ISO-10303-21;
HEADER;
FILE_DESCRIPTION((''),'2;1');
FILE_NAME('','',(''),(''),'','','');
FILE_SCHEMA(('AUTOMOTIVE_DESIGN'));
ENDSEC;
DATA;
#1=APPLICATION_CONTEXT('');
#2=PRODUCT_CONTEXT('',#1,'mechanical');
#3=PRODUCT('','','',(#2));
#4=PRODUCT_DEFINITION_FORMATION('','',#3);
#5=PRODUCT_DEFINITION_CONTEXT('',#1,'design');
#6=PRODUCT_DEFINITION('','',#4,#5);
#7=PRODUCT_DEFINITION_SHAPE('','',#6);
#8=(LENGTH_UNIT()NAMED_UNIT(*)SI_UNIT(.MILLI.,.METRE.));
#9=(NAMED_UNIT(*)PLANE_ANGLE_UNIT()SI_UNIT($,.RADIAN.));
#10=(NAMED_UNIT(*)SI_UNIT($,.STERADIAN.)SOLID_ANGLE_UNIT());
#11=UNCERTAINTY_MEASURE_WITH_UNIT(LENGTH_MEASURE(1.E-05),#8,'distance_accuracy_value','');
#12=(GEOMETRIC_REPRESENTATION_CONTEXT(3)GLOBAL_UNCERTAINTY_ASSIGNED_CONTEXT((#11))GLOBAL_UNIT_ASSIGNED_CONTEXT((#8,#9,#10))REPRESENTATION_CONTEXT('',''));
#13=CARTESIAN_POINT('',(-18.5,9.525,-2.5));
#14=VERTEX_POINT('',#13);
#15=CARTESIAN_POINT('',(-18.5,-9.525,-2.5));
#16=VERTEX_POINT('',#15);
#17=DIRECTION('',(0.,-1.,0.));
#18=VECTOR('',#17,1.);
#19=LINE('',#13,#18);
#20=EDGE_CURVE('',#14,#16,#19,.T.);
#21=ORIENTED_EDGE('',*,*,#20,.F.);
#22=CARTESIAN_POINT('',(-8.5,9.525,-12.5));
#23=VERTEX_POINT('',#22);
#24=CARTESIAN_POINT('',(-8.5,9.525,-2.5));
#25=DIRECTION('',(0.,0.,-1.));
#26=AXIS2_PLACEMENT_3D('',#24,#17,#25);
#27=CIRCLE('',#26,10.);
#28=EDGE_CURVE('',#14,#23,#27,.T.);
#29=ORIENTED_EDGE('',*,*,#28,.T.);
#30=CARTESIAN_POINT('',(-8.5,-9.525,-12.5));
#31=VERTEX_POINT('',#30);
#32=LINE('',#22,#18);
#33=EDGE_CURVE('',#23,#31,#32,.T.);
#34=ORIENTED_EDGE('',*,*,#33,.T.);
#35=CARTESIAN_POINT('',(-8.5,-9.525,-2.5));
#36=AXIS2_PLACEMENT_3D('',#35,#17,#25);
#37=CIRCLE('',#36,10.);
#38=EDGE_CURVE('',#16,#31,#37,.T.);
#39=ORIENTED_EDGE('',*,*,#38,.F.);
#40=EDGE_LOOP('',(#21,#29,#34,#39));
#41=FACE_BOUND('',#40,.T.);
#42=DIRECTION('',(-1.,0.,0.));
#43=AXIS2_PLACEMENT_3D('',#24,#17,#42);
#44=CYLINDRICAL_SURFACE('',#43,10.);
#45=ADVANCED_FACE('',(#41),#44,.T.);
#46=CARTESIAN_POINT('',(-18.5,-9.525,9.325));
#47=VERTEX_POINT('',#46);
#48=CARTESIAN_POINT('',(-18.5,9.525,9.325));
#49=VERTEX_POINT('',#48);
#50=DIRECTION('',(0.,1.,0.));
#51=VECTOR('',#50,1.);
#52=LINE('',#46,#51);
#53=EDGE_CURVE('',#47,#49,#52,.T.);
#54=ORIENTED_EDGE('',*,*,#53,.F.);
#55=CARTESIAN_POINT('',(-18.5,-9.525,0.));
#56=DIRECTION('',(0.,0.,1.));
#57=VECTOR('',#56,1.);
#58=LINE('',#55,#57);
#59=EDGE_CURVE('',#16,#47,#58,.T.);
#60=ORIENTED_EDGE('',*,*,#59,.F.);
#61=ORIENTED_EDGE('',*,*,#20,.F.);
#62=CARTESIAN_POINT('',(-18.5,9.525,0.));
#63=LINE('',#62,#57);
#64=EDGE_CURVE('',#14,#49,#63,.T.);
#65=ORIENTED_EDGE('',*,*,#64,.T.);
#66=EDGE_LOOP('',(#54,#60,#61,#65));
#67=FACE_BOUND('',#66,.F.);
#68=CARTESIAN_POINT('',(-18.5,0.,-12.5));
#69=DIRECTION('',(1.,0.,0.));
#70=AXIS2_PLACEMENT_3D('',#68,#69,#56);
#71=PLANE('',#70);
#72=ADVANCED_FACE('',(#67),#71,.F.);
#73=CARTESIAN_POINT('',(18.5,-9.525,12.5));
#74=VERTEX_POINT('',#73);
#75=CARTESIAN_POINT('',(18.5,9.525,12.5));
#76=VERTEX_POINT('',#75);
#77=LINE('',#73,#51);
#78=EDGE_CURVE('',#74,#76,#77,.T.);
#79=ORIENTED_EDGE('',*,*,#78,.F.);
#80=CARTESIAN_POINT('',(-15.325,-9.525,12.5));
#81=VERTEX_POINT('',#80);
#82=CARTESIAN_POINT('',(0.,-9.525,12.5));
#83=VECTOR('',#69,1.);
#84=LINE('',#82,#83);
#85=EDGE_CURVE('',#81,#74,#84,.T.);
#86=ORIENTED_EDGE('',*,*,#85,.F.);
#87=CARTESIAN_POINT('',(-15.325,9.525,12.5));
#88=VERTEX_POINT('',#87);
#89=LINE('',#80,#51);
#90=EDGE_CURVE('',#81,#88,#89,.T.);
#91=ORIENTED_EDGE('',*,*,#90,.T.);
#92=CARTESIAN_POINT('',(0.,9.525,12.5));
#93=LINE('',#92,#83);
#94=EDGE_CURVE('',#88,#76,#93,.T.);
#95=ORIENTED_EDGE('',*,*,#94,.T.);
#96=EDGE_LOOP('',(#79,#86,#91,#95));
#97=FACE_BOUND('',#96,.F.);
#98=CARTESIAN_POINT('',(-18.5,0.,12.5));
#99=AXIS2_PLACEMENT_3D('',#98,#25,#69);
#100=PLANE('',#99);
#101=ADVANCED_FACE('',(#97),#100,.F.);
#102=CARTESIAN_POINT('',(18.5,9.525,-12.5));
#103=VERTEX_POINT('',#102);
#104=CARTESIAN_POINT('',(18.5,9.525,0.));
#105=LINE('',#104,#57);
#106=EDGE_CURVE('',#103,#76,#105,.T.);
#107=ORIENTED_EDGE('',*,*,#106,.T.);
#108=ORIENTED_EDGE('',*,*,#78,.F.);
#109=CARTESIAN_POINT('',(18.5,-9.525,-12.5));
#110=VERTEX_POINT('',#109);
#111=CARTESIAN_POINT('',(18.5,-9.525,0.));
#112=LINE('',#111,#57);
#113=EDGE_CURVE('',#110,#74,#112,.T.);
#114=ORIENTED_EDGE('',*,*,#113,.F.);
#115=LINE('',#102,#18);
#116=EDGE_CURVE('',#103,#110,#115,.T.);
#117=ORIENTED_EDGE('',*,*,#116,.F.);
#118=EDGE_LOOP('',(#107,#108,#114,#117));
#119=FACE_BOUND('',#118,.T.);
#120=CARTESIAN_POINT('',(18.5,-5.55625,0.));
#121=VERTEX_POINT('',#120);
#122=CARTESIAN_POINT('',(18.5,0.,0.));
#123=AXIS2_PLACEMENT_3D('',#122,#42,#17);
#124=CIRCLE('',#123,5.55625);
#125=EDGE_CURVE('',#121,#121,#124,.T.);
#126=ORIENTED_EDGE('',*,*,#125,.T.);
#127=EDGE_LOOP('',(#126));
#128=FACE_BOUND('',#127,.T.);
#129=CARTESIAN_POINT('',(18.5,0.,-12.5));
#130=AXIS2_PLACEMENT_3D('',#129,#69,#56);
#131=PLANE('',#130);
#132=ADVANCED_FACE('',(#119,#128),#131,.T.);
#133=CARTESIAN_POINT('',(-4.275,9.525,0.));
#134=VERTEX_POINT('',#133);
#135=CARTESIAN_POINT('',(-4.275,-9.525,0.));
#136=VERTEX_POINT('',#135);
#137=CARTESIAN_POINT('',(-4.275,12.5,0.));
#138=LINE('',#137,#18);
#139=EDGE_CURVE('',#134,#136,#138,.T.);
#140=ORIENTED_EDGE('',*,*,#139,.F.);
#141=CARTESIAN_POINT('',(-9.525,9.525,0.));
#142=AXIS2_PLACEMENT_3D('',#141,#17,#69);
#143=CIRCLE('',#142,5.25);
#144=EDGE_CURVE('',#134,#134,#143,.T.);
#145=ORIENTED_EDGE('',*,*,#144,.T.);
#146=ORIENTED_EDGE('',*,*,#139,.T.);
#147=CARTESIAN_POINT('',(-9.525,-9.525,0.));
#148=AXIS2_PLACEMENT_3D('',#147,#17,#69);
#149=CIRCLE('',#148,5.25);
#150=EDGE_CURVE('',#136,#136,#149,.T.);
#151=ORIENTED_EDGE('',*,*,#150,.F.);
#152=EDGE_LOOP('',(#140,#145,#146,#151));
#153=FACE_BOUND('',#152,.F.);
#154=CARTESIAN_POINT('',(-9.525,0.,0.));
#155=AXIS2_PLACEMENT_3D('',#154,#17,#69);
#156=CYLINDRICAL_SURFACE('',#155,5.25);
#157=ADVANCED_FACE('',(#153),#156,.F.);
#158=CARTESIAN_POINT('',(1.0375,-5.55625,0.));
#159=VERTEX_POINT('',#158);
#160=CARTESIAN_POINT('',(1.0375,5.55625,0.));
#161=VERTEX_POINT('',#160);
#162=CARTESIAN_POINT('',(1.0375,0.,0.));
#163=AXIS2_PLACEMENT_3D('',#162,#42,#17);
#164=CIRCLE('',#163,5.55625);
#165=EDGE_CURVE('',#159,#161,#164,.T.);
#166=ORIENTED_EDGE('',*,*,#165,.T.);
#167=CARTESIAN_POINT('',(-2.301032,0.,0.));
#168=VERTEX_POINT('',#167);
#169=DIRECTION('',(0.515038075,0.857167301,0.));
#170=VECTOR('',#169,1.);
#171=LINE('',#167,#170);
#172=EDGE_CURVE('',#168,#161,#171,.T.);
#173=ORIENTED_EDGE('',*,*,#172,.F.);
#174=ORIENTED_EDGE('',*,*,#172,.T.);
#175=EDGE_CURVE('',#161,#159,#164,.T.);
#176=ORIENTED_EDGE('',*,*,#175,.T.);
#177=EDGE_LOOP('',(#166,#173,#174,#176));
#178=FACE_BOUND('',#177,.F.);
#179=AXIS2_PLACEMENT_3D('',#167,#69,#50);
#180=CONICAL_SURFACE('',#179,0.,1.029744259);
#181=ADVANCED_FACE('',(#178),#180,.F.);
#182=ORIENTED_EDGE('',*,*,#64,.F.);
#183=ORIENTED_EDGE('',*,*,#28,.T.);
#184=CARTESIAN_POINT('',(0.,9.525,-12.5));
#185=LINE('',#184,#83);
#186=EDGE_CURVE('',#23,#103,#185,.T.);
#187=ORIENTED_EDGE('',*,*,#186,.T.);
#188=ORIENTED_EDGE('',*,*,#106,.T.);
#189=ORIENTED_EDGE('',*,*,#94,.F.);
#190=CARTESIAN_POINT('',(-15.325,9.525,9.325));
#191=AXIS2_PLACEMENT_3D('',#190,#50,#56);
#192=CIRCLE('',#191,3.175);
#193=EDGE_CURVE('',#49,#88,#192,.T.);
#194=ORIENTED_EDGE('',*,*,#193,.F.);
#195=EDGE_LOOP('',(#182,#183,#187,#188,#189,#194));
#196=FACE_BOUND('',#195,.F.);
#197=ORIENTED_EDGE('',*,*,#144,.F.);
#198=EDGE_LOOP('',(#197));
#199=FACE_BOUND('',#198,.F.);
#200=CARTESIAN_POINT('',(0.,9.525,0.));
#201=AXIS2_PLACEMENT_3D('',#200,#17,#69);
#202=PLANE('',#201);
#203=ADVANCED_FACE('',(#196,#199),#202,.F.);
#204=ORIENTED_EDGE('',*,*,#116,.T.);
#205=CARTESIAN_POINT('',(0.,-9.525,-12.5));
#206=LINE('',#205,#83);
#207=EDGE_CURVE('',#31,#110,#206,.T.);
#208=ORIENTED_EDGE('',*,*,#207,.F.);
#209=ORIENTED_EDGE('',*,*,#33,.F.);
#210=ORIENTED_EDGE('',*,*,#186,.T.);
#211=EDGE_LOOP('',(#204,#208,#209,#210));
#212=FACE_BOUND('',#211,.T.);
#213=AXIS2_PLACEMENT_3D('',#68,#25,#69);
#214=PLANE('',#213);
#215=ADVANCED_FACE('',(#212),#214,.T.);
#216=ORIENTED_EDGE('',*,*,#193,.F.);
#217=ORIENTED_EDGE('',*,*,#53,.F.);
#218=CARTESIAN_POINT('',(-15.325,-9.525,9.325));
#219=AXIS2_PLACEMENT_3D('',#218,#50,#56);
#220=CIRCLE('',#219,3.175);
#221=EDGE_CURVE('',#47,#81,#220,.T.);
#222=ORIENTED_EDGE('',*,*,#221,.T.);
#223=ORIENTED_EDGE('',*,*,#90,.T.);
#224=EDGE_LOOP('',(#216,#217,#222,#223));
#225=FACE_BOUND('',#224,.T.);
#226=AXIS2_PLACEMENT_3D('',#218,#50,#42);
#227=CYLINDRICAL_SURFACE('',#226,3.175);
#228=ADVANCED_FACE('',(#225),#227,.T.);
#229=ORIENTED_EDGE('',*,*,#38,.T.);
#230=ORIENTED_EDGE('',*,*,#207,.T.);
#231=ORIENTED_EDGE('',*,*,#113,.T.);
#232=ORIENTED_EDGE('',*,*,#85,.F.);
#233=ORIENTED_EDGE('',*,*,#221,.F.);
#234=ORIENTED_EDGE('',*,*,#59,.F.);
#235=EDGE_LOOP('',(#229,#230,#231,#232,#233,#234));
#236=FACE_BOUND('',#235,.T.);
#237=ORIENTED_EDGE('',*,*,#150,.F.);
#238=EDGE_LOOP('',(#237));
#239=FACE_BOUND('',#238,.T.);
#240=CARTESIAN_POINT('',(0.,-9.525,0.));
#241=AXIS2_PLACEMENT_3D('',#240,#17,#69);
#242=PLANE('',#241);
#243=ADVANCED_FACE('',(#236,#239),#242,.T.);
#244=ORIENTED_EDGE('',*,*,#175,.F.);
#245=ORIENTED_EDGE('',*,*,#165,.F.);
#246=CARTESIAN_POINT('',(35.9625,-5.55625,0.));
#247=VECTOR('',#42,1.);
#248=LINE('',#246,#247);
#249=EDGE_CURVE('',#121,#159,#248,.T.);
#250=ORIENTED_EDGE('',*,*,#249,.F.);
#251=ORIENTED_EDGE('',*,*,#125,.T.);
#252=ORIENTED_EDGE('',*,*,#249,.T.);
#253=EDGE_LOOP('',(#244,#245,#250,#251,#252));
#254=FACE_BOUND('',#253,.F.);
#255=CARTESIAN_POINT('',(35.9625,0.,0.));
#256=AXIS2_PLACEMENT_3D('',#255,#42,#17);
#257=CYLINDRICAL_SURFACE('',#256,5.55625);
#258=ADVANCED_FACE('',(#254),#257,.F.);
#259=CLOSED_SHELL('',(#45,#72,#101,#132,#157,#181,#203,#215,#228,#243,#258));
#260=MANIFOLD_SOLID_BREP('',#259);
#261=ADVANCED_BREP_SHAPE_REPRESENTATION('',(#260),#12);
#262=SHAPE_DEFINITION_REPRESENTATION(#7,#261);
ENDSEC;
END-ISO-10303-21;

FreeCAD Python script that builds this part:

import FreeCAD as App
import Part
import Sketcher

V = App.Vector
Q = App.Units.Quantity


def edges_at(feature, points):
    """Names of the edges that pass closest to the given points."""
    edges = feature.Shape.Edges
    near = lambda p: min(range(len(edges)), key=lambda i: edges[i].distToShape(Part.Vertex(*p))[0])
    return sorted({f"Edge{near(p) + 1}" for p in points})


def add_polygon(sketch, points):
    """Adds a closed chain of lines whose ends are joined by coincident constraints."""
    first, n = sketch.GeometryCount, len(points)
    for a, b in zip(points, points[1:] + points[:1]):
        sketch.addGeometry(Part.LineSegment(App.Vector(*a, 0), App.Vector(*b, 0)), False)
    for i in range(n):
        sketch.addConstraint(Sketcher.Constraint("Coincident", first + i, 2, first + (i + 1) % n, 1))

doc = App.newDocument("Part")
body = doc.addObject("PartDesign::Body", "Body")

# Sketch on XZ plane
sketch1 = body.newObject("Sketcher::SketchObject", "Sketch")
sketch1.AttachmentSupport = (doc.getObject("XZ_Plane"), [""])
sketch1.MapMode = "FlatFace"
add_polygon(sketch1, [(-18.5, 12.5), (-18.5, -12.5), (18.5, -12.5), (18.5, 12.5)])  # lines 0-3
sketch1.addConstraint(Sketcher.Constraint("Vertical", 0))
sketch1.addConstraint(Sketcher.Constraint("Horizontal", 1))
sketch1.addConstraint(Sketcher.Constraint("Vertical", 2))
sketch1.addConstraint(Sketcher.Constraint("Horizontal", 3))
sketch1.addConstraint(Sketcher.Constraint("Symmetric", 0, 2, 2, 2, -1, 1))
sketch1.addConstraint(Sketcher.Constraint("DistanceX", 1, 1, 1, 2, Q("37 mm")))
sketch1.addConstraint(Sketcher.Constraint("DistanceY", 0, 2, 0, 1, Q("25 mm")))
pad1 = body.newObject("PartDesign::Pad", "Pad")
pad1.Profile = sketch1
pad1.Length = 19.05
pad1.Midplane = True

# Sketch on XZ plane
sketch2 = body.newObject("Sketcher::SketchObject", "Sketch001")
sketch2.AttachmentSupport = (doc.getObject("XZ_Plane"), [""])
sketch2.MapMode = "FlatFace"
sketch2.addGeometry(Part.Circle(V(-9.525, 0, 0), V(0, 0, 1), 5.25), False)
sketch2.addConstraint(Sketcher.Constraint("PointOnObject", 0, 3, -1))
sketch2.addConstraint(Sketcher.Constraint("Diameter", 0, Q("10.5 mm")))
sketch2.addConstraint(Sketcher.Constraint("DistanceX", 0, 3, -1, 1, Q("9.525 mm")))
pocket1 = body.newObject("PartDesign::Pocket", "Pocket")
pocket1.Profile = sketch2
pocket1.Length = 25
pocket1.Midplane = True
doc.recompute()

fillet = body.newObject("PartDesign::Fillet", "Fillet")
fillet.Base = (pocket1, edges_at(pocket1, [(-18.5, 0, -12.5)]))
fillet.Radius = 10

# Sketch on YZ plane
sketch3 = body.newObject("Sketcher::SketchObject", "Sketch002")
sketch3.AttachmentSupport = (doc.getObject("YZ_Plane"), [""])
sketch3.MapMode = "FlatFace"
sketch3.AttachmentOffset = App.Placement(V(0, 0, 18.5), App.Rotation())
sketch3.addGeometry(Part.Circle(V(0, 0, 0), V(0, 0, 1), 5.55625), False)
sketch3.addConstraint(Sketcher.Constraint("Coincident", 0, 3, -1, 1))
sketch3.addConstraint(Sketcher.Constraint("Diameter", 0, Q("11.1125 mm")))
doc.recompute()
hole = body.newObject("PartDesign::Hole", "Hole")
hole.Profile = sketch3
hole.ThreadType = "None"
hole.Diameter = 11.1125
hole.DepthType = "Dimension"
hole.Depth = 17.4625
hole.DrillPoint = "Angled"
hole.DrillPointAngle = 118
doc.recompute()

fillet2 = body.newObject("PartDesign::Fillet", "Fillet001")
fillet2.Base = (hole, edges_at(hole, [(-18.5, 0, 12.5)]))
fillet2.Radius = 3.175

doc.recompute()
